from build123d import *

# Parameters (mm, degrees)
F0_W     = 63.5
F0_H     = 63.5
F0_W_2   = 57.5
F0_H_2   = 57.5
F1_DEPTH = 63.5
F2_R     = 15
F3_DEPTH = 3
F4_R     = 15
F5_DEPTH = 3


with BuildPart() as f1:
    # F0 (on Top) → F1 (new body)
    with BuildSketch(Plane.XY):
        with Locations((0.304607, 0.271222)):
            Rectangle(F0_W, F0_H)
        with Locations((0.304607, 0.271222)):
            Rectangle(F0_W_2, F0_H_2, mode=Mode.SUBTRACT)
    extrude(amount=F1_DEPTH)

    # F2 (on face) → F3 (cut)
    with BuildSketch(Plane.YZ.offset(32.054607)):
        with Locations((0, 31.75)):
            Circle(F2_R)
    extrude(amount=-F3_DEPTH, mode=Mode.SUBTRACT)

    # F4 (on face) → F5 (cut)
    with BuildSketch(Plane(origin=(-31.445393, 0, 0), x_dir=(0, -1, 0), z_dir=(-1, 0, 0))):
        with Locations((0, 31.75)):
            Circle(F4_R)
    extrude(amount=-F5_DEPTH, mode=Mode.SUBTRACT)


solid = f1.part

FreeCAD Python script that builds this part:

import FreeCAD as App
import Part
import Sketcher

V = App.Vector
Q = App.Units.Quantity

doc = App.newDocument("Part")
params = doc.addObject("Spreadsheet::Sheet", "Params")
for row, (alias, value) in enumerate([
    ("sketch1_width", "63.5 mm"),
    ("sketch1_width2", "57.5 mm"),
    ("pad1_length", "63.5 mm"),
    ("sketch2_diameter", "30 mm"),
    ("pocket1_length", "3 mm"),
    ("sketch3_diameter", "30 mm"),
    ("pocket2_length", "3 mm"),
], start=1):
    params.set(f"A{row}", alias)
    params.set(f"B{row}", "=" + value)
    params.setAlias(f"B{row}", alias)

body = doc.addObject("PartDesign::Body", "Body")

sketch1 = body.newObject("Sketcher::SketchObject", "Sketch")
sketch1.AttachmentSupport = (doc.getObject("XY_Plane"), [""])
sketch1.MapMode = "FlatFace"
sketch1.addGeometry(Part.LineSegment(V(-31, 32, 0), V(-31, -31, 0)), False)
sketch1.addGeometry(Part.LineSegment(V(-31, -31, 0), V(32, -31, 0)), False)
sketch1.addGeometry(Part.LineSegment(V(32, -31, 0), V(32, 32, 0)), False)
sketch1.addGeometry(Part.LineSegment(V(32, 32, 0), V(-31, 32, 0)), False)
sketch1.addGeometry(Part.LineSegment(V(29, -28, 0), V(-28, -28, 0)), False)
sketch1.addGeometry(Part.LineSegment(V(-28, -28, 0), V(-28, 29, 0)), False)
sketch1.addGeometry(Part.LineSegment(V(-28, 29, 0), V(29, 29, 0)), False)
sketch1.addGeometry(Part.LineSegment(V(29, 29, 0), V(29, -28, 0)), False)
sketch1.addConstraint(Sketcher.Constraint("Coincident", 0, 2, 1, 1))
sketch1.addConstraint(Sketcher.Constraint("Coincident", 1, 2, 2, 1))
sketch1.addConstraint(Sketcher.Constraint("Coincident", 2, 2, 3, 1))
sketch1.addConstraint(Sketcher.Constraint("Coincident", 3, 2, 0, 1))
sketch1.addConstraint(Sketcher.Constraint("Coincident", 4, 2, 5, 1))
sketch1.addConstraint(Sketcher.Constraint("Coincident", 5, 2, 6, 1))
sketch1.addConstraint(Sketcher.Constraint("Coincident", 6, 2, 7, 1))
sketch1.addConstraint(Sketcher.Constraint("Coincident", 7, 2, 4, 1))
sketch1.addConstraint(Sketcher.Constraint("Vertical", 0))
sketch1.addConstraint(Sketcher.Constraint("Horizontal", 1))
sketch1.addConstraint(Sketcher.Constraint("Vertical", 2))
sketch1.addConstraint(Sketcher.Constraint("Horizontal", 3))
sketch1.addConstraint(Sketcher.Constraint("Horizontal", 4))
sketch1.addConstraint(Sketcher.Constraint("Vertical", 5))
sketch1.addConstraint(Sketcher.Constraint("Horizontal", 6))
sketch1.addConstraint(Sketcher.Constraint("Vertical", 7))
sketch1.addConstraint(Sketcher.Constraint("Equal", 3, 0))
sketch1.addConstraint(Sketcher.Constraint("Equal", 6, 5))
sketch1.addConstraint(Sketcher.Constraint("DistanceX", 1, 1, 1, 2, Q("63.5 mm")))
sketch1.addConstraint(Sketcher.Constraint("DistanceX", 4, 2, 4, 1, Q("57.5 mm")))
sketch1.addConstraint(Sketcher.Constraint("DistanceX", 0, 2, 4, 2, Q("3 mm")))
sketch1.addConstraint(Sketcher.Constraint("DistanceY", 0, 2, 4, 2, Q("3 mm")))
sketch1.addConstraint(Sketcher.Constraint("DistanceX", 0, 2, -1, 1, Q("31.445393 mm")))
sketch1.addConstraint(Sketcher.Constraint("DistanceY", 0, 2, -1, 1, Q("31.478778 mm")))
sketch1.setExpression("Constraints[18]", "Params.sketch1_width")
sketch1.setExpression("Constraints[19]", "Params.sketch1_width2")
pad1 = body.newObject("PartDesign::Pad", "Pad")
pad1.Profile = sketch1
pad1.setExpression("Length", "Params.pad1_length")

sketch2 = body.newObject("Sketcher::SketchObject", "Sketch001")
sketch2.AttachmentSupport = (doc.getObject("YZ_Plane"), [""])
sketch2.MapMode = "FlatFace"
sketch2.AttachmentOffset = App.Placement(V(0, 0, 32.054607), App.Rotation())
sketch2.addGeometry(Part.Circle(V(0, 32, 0), V(0, 0, 1), 15), False)
sketch2.addConstraint(Sketcher.Constraint("PointOnObject", 0, 3, -2))
sketch2.addConstraint(Sketcher.Constraint("Diameter", 0, Q("30 mm")))
sketch2.addConstraint(Sketcher.Constraint("DistanceY", -1, 1, 0, 3, Q("31.75 mm")))
sketch2.setExpression("Constraints[1]", "Params.sketch2_diameter")
pocket1 = body.newObject("PartDesign::Pocket", "Pocket")
pocket1.Profile = sketch2
pocket1.setExpression("Length", "Params.pocket1_length")

sketch3 = body.newObject("Sketcher::SketchObject", "Sketch002")
sketch3.AttachmentSupport = (doc.getObject("YZ_Plane"), [""])
sketch3.MapMode = "FlatFace"
sketch3.AttachmentOffset = App.Placement(V(0, 0, -31.445393), App.Rotation())
sketch3.addGeometry(Part.Circle(V(0, 32, 0), V(0, 0, 1), 15), False)
sketch3.addConstraint(Sketcher.Constraint("PointOnObject", 0, 3, -2))
sketch3.addConstraint(Sketcher.Constraint("Diameter", 0, Q("30 mm")))
sketch3.addConstraint(Sketcher.Constraint("DistanceY", -1, 1, 0, 3, Q("31.75 mm")))
sketch3.setExpression("Constraints[1]", "Params.sketch3_diameter")
pocket2 = body.newObject("PartDesign::Pocket", "Pocket001")
pocket2.Profile = sketch3
pocket2.setExpression("Length", "Params.pocket2_length")
pocket2.Reversed = True

doc.recompute()
